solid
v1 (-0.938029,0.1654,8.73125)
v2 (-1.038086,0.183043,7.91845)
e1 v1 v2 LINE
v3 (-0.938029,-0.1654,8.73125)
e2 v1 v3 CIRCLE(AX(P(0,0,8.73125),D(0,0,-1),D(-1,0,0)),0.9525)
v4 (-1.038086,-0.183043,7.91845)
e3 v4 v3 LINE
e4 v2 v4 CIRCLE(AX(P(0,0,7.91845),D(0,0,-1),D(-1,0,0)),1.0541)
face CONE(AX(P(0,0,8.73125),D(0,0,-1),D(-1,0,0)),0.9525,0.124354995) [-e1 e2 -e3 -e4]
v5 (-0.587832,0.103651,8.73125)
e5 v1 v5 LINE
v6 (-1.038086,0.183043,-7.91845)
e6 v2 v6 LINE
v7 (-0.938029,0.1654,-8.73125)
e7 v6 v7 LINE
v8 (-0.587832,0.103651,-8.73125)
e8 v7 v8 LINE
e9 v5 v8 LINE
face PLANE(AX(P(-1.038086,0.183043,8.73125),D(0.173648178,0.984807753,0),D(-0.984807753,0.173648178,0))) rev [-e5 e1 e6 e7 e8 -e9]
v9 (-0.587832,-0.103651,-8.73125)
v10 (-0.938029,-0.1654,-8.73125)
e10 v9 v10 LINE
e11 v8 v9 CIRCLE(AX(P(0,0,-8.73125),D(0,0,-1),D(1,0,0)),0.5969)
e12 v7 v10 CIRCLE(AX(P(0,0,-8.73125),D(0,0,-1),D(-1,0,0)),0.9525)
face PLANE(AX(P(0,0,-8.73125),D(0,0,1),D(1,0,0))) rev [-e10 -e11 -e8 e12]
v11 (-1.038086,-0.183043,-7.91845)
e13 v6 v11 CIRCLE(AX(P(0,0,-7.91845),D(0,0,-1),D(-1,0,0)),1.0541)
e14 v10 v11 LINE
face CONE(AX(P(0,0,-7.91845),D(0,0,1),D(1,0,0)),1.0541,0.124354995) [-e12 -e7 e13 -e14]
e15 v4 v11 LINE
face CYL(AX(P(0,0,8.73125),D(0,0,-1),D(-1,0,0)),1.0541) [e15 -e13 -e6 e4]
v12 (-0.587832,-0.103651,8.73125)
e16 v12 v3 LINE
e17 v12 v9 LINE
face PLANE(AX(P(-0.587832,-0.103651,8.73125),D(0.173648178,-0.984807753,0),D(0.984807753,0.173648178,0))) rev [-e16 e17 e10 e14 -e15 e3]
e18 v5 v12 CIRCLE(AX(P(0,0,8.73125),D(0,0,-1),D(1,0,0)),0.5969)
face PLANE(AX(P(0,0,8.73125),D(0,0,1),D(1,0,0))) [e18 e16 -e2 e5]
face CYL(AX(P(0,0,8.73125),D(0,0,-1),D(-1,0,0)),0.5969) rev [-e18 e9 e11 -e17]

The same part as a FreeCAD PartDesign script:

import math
import FreeCAD as App
import Part
import Sketcher
Q = App.Units.Quantity

doc = App.newDocument("Part")
body = doc.addObject("PartDesign::Body", "Body")

sketch1 = body.newObject("Sketcher::SketchObject", "Sketch")
sketch1.AttachmentSupport = (doc.getObject("XY_Plane"), [""])
sketch1.MapMode = "FlatFace"
sketch1.addGeometry(Part.LineSegment(App.Vector(-1.038086, 0.183043, 0), App.Vector(-0.587832, 0.103651, 0)), False)
sketch1.addGeometry(Part.ArcOfCircle(Part.Circle(App.Vector(0, 0, 0), App.Vector(0, 0, 1), 0.5969), math.radians(-170), math.radians(170)), False)
sketch1.addGeometry(Part.LineSegment(App.Vector(-0.587832, -0.103651, 0), App.Vector(-1.038086, -0.183043, 0)), False)
sketch1.addGeometry(Part.ArcOfCircle(Part.Circle(App.Vector(0, 0, 0), App.Vector(0, 0, 1), 1.0541), math.radians(-170), math.radians(170)), False)
sketch1.addConstraint(Sketcher.Constraint("Coincident", 0, 2, 1, 2))
sketch1.addConstraint(Sketcher.Constraint("Coincident", 1, 1, 2, 1))
sketch1.addConstraint(Sketcher.Constraint("Coincident", 2, 2, 3, 1))
sketch1.addConstraint(Sketcher.Constraint("Coincident", 3, 2, 0, 1))
sketch1.addConstraint(Sketcher.Constraint("Coincident", 1, 3, -1, 1))
sketch1.addConstraint(Sketcher.Constraint("Coincident", 3, 3, -1, 1))
sketch1.addConstraint(Sketcher.Constraint("Vertical", 0, 2, 1, 1))
sketch1.addConstraint(Sketcher.Constraint("Vertical", 2, 2, 3, 2))
sketch1.addConstraint(Sketcher.Constraint("Angle", 0, Q("-10 deg")))
sketch1.addConstraint(Sketcher.Constraint("Radius", 1, Q("0.0235 in")))
sketch1.addConstraint(Sketcher.Constraint("Radius", 3, Q("0.0415 in")))
sketch1.addConstraint(Sketcher.Constraint("DistanceY", 1, 1, 0, 2, 0.207301))
pad1 = body.newObject("PartDesign::Pad", "Pad")
pad1.Profile = sketch1
pad1.Length = Q("0.6875 in")
pad1.Midplane = True

sketch2 = body.newObject("Sketcher::SketchObject", "Sketch001")
sketch2.AttachmentSupport = (doc.getObject("YZ_Plane"), [""])
sketch2.MapMode = "FlatFace"
sketch2.addGeometry(Part.LineSegment(App.Vector(0.9525, -8.73125, 0), App.Vector(1.0541, -8.73125, 0)), False)
sketch2.addGeometry(Part.LineSegment(App.Vector(1.0541, -8.73125, 0), App.Vector(1.0541, -7.91845, 0)), False)
sketch2.addGeometry(Part.LineSegment(App.Vector(1.0541, -7.91845, 0), App.Vector(0.9525, -8.73125, 0)), False)
sketch2.addGeometry(Part.LineSegment(App.Vector(1.0541, 7.91845, 0), App.Vector(1.0541, 8.73125, 0)), False)
sketch2.addGeometry(Part.LineSegment(App.Vector(1.0541, 8.73125, 0), App.Vector(0.9525, 8.73125, 0)), False)
sketch2.addGeometry(Part.LineSegment(App.Vector(0.9525, 8.73125, 0), App.Vector(1.0541, 7.91845, 0)), False)
sketch2.addConstraint(Sketcher.Constraint("Coincident", 0, 2, 1, 1))
sketch2.addConstraint(Sketcher.Constraint("Coincident", 1, 2, 2, 1))
sketch2.addConstraint(Sketcher.Constraint("Coincident", 2, 2, 0, 1))
sketch2.addConstraint(Sketcher.Constraint("Coincident", 3, 2, 4, 1))
sketch2.addConstraint(Sketcher.Constraint("Coincident", 4, 2, 5, 1))
sketch2.addConstraint(Sketcher.Constraint("Coincident", 5, 2, 3, 1))
sketch2.addConstraint(Sketcher.Constraint("Horizontal", 0))
sketch2.addConstraint(Sketcher.Constraint("Vertical", 1))
sketch2.addConstraint(Sketcher.Constraint("Vertical", 3))
sketch2.addConstraint(Sketcher.Constraint("Horizontal", 4))
sketch2.addConstraint(Sketcher.Constraint("Symmetric", 0, 2, 3, 2, -1))
sketch2.addConstraint(Sketcher.Constraint("Vertical", 2, 2, 4, 2))
sketch2.addConstraint(Sketcher.Constraint("Equal", 1, 3))
sketch2.addConstraint(Sketcher.Constraint("DistanceX", 0, 1, 0, 2, Q("0.004 in")))
sketch2.addConstraint(Sketcher.Constraint("DistanceY", 1, 1, 1, 2, Q("0.032 in")))
sketch2.addConstraint(Sketcher.Constraint("DistanceY", 0, 2, -1, 1, Q("0.34375 in")))
sketch2.addConstraint(Sketcher.Constraint("DistanceX", -1, 1, 0, 2, Q("0.0415 in")))
groove = body.newObject("PartDesign::Groove", "Groove")
groove.Profile = sketch2
groove.ReferenceAxis = (sketch2, ["V_Axis"])
groove.Angle = 360

doc.recompute()
